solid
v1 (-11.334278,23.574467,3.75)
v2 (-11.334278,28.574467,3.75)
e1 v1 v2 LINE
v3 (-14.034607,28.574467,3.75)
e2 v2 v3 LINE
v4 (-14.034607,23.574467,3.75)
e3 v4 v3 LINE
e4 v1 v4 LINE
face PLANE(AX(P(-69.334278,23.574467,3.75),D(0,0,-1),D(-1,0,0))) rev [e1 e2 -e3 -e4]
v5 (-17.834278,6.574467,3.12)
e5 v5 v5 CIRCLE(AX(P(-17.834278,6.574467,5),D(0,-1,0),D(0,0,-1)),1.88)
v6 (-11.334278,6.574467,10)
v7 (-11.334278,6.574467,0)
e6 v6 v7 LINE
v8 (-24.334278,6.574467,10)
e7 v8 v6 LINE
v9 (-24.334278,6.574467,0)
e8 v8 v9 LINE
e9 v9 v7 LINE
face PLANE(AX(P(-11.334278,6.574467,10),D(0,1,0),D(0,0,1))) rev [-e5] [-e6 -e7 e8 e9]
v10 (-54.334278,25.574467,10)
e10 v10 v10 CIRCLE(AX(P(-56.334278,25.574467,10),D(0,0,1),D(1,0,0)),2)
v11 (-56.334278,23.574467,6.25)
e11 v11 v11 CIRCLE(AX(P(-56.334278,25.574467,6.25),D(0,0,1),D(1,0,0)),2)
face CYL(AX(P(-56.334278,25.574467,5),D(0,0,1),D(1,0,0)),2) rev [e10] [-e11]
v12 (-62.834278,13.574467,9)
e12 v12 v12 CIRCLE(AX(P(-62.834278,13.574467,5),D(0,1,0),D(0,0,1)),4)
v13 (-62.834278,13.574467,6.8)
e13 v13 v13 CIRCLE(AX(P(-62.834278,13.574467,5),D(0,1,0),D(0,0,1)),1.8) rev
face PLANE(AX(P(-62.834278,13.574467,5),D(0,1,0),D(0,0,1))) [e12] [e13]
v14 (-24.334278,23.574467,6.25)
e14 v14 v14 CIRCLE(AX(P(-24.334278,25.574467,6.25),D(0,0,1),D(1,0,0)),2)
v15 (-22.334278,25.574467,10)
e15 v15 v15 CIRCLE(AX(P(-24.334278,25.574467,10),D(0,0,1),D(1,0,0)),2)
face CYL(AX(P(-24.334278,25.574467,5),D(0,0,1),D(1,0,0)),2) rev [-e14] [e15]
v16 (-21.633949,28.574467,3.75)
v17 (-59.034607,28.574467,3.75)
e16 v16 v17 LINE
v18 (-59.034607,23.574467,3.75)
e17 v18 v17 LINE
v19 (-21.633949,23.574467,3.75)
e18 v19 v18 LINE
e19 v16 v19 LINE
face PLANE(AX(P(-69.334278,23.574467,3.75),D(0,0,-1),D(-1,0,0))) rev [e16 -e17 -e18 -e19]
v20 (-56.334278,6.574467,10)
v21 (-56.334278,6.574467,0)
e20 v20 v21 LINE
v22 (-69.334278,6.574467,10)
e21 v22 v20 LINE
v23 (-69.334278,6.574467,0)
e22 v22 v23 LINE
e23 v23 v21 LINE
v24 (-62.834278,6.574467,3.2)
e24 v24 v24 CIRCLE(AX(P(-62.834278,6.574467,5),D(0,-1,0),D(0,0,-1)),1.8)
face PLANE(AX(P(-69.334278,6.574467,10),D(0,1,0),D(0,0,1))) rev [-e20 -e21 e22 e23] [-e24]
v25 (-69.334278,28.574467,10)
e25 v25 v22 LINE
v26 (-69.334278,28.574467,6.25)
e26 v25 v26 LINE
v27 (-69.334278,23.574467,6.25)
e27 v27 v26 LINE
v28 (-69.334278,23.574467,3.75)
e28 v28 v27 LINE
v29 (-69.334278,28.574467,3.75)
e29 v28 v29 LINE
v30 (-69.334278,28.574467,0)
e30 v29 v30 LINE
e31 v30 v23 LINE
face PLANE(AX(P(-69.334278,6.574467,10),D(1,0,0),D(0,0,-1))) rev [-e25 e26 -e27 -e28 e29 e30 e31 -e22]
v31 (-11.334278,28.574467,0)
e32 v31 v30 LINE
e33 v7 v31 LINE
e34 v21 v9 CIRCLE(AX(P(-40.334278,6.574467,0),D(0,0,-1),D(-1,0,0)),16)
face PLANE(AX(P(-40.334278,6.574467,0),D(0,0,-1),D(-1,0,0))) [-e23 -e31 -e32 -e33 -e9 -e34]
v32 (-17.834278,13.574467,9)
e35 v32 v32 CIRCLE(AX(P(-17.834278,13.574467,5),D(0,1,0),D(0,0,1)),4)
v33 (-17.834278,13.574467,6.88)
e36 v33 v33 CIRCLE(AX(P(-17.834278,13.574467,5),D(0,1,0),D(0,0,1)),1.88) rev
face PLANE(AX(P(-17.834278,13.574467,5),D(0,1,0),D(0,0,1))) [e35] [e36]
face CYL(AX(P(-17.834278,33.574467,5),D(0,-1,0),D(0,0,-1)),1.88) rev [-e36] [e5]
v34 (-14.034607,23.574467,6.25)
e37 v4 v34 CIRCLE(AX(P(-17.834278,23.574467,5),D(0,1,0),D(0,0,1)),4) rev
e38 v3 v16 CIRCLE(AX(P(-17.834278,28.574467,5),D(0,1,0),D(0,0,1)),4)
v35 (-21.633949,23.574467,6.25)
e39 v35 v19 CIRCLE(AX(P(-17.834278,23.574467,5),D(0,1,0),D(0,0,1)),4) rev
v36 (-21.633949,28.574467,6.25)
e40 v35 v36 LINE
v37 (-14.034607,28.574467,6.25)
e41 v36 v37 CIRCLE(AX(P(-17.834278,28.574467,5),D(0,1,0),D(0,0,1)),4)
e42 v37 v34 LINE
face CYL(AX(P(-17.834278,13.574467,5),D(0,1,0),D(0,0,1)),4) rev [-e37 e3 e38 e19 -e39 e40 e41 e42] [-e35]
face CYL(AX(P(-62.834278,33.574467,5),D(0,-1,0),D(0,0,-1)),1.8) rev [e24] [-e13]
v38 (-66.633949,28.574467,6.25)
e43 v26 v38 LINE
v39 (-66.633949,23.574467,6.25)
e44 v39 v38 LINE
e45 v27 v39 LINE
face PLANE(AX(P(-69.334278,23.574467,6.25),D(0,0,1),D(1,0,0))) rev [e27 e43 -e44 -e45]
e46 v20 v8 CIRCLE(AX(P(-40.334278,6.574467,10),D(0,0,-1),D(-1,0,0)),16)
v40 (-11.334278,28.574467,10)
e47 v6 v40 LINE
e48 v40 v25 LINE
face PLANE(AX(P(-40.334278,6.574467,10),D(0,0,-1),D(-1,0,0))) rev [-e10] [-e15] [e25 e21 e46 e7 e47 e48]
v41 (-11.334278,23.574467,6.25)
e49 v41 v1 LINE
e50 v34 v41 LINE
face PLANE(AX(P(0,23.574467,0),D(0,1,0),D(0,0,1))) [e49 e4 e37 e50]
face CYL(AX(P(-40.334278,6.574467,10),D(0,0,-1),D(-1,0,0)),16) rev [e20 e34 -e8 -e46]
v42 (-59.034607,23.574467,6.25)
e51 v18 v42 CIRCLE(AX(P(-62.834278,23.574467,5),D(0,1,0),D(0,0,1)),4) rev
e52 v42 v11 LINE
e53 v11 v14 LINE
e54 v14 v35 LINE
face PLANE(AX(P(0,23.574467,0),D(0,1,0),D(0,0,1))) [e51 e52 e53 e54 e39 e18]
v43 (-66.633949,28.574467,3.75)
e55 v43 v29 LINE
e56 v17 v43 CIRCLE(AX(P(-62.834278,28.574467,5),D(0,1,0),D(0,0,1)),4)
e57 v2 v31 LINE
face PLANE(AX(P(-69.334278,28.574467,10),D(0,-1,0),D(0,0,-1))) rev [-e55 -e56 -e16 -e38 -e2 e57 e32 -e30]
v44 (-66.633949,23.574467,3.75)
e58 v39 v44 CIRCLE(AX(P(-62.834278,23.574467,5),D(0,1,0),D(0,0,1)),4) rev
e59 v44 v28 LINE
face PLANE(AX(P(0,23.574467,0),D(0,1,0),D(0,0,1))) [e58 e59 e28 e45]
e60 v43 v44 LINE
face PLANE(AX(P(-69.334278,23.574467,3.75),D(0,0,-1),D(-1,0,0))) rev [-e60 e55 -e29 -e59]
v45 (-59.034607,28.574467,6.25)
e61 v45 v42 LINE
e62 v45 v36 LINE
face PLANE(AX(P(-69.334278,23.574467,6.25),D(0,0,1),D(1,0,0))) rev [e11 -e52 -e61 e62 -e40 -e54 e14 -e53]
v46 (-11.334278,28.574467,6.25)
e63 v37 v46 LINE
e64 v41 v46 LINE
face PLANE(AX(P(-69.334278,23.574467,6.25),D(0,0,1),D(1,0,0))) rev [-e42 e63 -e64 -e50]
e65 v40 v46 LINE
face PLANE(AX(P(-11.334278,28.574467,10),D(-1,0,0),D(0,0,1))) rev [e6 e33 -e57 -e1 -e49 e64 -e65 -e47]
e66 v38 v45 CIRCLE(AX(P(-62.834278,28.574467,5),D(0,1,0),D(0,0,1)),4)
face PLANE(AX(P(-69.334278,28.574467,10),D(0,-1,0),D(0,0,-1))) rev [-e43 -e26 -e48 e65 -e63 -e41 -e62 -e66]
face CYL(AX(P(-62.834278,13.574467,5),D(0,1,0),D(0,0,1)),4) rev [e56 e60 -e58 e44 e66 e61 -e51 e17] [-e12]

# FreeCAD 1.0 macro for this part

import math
import FreeCAD as App
import Part
import Sketcher

V = App.Vector
Q = App.Units.Quantity


def add_polygon(sketch, points):
    """Adds a closed chain of lines whose ends are joined by coincident constraints."""
    first, n = sketch.GeometryCount, len(points)
    for a, b in zip(points, points[1:] + points[:1]):
        sketch.addGeometry(Part.LineSegment(App.Vector(*a, 0), App.Vector(*b, 0)), False)
    for i in range(n):
        sketch.addConstraint(Sketcher.Constraint("Coincident", first + i, 2, first + (i + 1) % n, 1))

doc = App.newDocument("Part")
body = doc.addObject("PartDesign::Body", "Body")

sketch1 = doc.addObject("Sketcher::SketchObject", "Sketch")
body.addObject(sketch1)
sketch1.AttachmentSupport = (doc.XY_Plane, [""])
sketch1.MapMode = "FlatFace"
sketch1.addGeometry([
    Part.LineSegment(V(-69, 29, 0), V(-69, 7, 0)),
    Part.LineSegment(V(-69, 7, 0), V(-56, 7, 0)),
    Part.ArcOfCircle(Part.Circle(V(-40, 7, 0), V(0, 0, 1), 16), math.radians(0), math.radians(180)),
    Part.LineSegment(V(-24, 7, 0), V(-11, 7, 0)),
    Part.LineSegment(V(-11, 7, 0), V(-11, 29, 0)),
    Part.LineSegment(V(-11, 29, 0), V(-69, 29, 0)),
], False)
sketch1.addConstraint([
    Sketcher.Constraint("Coincident", 0, 2, 1, 1),
    Sketcher.Constraint("Coincident", 1, 2, 2, 2),
    Sketcher.Constraint("Coincident", 2, 1, 3, 1),
    Sketcher.Constraint("Coincident", 3, 2, 4, 1),
    Sketcher.Constraint("Coincident", 4, 2, 5, 1),
    Sketcher.Constraint("Coincident", 5, 2, 0, 1),
    Sketcher.Constraint("Vertical", 0),
    Sketcher.Constraint("Horizontal", 1),
    Sketcher.Constraint("Horizontal", 3),
    Sketcher.Constraint("Vertical", 4),
    Sketcher.Constraint("Horizontal", 5),
    Sketcher.Constraint("Horizontal", 2, 3, 0, 2),
    Sketcher.Constraint("Horizontal", 1, 2, 2, 1),
    Sketcher.Constraint("Equal", 1, 3),
    Sketcher.Constraint("Radius", 2, Q("16 mm")),
    Sketcher.Constraint("DistanceX", 1, 1, 1, 2, Q("13 mm")),
    Sketcher.Constraint("DistanceY", 0, 2, 0, 1, Q("22 mm")),
    Sketcher.Constraint("DistanceX", 2, 3, -1, 1, Q("40.334278 mm")),
    Sketcher.Constraint("DistanceY", -1, 1, 2, 3, Q("6.574467 mm")),
])
pad1 = doc.addObject("PartDesign::Pad", "Pad")
body.addObject(pad1)
pad1.Profile = sketch1
pad1.Length = 10

sketch2 = doc.addObject("Sketcher::SketchObject", "Sketch001")
body.addObject(sketch2)
sketch2.AttachmentSupport = (doc.XZ_Plane, [""])
sketch2.MapMode = "FlatFace"
sketch2.AttachmentOffset = App.Placement(V(0, 0, -6.574467), App.Rotation())
sketch2.addGeometry([
    Part.Circle(V(-62.8, 5, 0), V(0, 0, 1), 1.8),
    Part.Circle(V(-17.8, 5, 0), V(0, 0, 1), 1.9),
], False)
sketch2.addConstraint([
    Sketcher.Constraint("Horizontal", 0, 3, 1, 3),
    Sketcher.Constraint("Diameter", 0, Q("3.6 mm")),
    Sketcher.Constraint("Diameter", 1, Q("3.76 mm")),
    Sketcher.Constraint("DistanceY", -1, 1, 0, 3, Q("5 mm")),
    Sketcher.Constraint("DistanceX", 0, 3, 1, 3, Q("45 mm")),
    Sketcher.Constraint("DistanceX", 0, 3, -1, 1, Q("62.834278 mm")),
])
pocket1 = doc.addObject("PartDesign::Pocket", "Pocket")
body.addObject(pocket1)
pocket1.Profile = sketch2
pocket1.Length = 27

sketch3 = doc.addObject("Sketcher::SketchObject", "Sketch002")
body.addObject(sketch3)
sketch3.AttachmentSupport = (doc.XZ_Plane, [""])
sketch3.MapMode = "FlatFace"
sketch3.AttachmentOffset = App.Placement(V(0, 0, -28.574467), App.Rotation())
sketch3.addGeometry([
    Part.Circle(V(-62.8, 5, 0), V(0, 0, 1), 4),
    Part.Circle(V(-17.8, 5, 0), V(0, 0, 1), 4),
], False)
sketch3.addConstraint([
    Sketcher.Constraint("Equal", 0, 1),
    Sketcher.Constraint("Horizontal", 0, 3, 1, 3),
    Sketcher.Constraint("Diameter", 0, Q("8 mm")),
    Sketcher.Constraint("DistanceY", -1, 1, 0, 3, Q("5 mm")),
    Sketcher.Constraint("DistanceX", 0, 3, 1, 3, Q("45 mm")),
    Sketcher.Constraint("DistanceX", 0, 3, -1, 1, Q("62.834278 mm")),
])
pocket2 = doc.addObject("PartDesign::Pocket", "Pocket001")
body.addObject(pocket2)
pocket2.Profile = sketch3
pocket2.Length = 15
pocket2.Reversed = True

sketch4 = doc.addObject("Sketcher::SketchObject", "Sketch003")
body.addObject(sketch4)
sketch4.AttachmentSupport = (doc.XZ_Plane, [""])
sketch4.MapMode = "FlatFace"
sketch4.AttachmentOffset = App.Placement(V(0, 0, -28.574467), App.Rotation())
add_polygon(sketch4, [(-69.3, 3.8), (-69.3, 6.2), (-11.3, 6.2), (-11.3, 3.8)])
sketch4.addConstraint([
    Sketcher.Constraint("Vertical", 0),
    Sketcher.Constraint("Horizontal", 1),
    Sketcher.Constraint("Vertical", 2),
    Sketcher.Constraint("Horizontal", 3),
    Sketcher.Constraint("DistanceX", 1, 1, 1, 2, Q("58 mm")),
    Sketcher.Constraint("DistanceY", 0, 1, 0, 2, Q("2.5 mm")),
    Sketcher.Constraint("DistanceY", -1, 1, 0, 2, Q("6.25 mm")),
    Sketcher.Constraint("DistanceX", 0, 2, -1, 1, Q("69.334278 mm")),
])
pocket3 = doc.addObject("PartDesign::Pocket", "Pocket002")
body.addObject(pocket3)
pocket3.Profile = sketch4
pocket3.Length = 5
pocket3.Reversed = True

sketch5 = doc.addObject("Sketcher::SketchObject", "Sketch004")
body.addObject(sketch5)
sketch5.AttachmentSupport = (doc.XY_Plane, [""])
sketch5.MapMode = "FlatFace"
sketch5.AttachmentOffset = App.Placement(V(0, 0, 10), App.Rotation())
sketch5.addGeometry([
    Part.Circle(V(-56.3, 25.6, 0), V(0, 0, 1), 2),
    Part.Circle(V(-24.3, 25.6, 0), V(0, 0, 1), 2),
], False)
sketch5.addConstraint([
    Sketcher.Constraint("Equal", 0, 1),
    Sketcher.Constraint("Horizontal", 0, 3, 1, 3),
    Sketcher.Constraint("Diameter", 0, Q("4 mm")),
    Sketcher.Constraint("DistanceX", 0, 3, 1, 3, Q("32 mm")),
    Sketcher.Constraint("DistanceX", 0, 3, -1, 1, Q("56.334278 mm")),
    Sketcher.Constraint("DistanceY", -1, 1, 0, 3, Q("25.574467 mm")),
])
pocket4 = doc.addObject("PartDesign::Pocket", "Pocket003")
body.addObject(pocket4)
pocket4.Profile = sketch5
pocket4.Length = 5

doc.recompute()
